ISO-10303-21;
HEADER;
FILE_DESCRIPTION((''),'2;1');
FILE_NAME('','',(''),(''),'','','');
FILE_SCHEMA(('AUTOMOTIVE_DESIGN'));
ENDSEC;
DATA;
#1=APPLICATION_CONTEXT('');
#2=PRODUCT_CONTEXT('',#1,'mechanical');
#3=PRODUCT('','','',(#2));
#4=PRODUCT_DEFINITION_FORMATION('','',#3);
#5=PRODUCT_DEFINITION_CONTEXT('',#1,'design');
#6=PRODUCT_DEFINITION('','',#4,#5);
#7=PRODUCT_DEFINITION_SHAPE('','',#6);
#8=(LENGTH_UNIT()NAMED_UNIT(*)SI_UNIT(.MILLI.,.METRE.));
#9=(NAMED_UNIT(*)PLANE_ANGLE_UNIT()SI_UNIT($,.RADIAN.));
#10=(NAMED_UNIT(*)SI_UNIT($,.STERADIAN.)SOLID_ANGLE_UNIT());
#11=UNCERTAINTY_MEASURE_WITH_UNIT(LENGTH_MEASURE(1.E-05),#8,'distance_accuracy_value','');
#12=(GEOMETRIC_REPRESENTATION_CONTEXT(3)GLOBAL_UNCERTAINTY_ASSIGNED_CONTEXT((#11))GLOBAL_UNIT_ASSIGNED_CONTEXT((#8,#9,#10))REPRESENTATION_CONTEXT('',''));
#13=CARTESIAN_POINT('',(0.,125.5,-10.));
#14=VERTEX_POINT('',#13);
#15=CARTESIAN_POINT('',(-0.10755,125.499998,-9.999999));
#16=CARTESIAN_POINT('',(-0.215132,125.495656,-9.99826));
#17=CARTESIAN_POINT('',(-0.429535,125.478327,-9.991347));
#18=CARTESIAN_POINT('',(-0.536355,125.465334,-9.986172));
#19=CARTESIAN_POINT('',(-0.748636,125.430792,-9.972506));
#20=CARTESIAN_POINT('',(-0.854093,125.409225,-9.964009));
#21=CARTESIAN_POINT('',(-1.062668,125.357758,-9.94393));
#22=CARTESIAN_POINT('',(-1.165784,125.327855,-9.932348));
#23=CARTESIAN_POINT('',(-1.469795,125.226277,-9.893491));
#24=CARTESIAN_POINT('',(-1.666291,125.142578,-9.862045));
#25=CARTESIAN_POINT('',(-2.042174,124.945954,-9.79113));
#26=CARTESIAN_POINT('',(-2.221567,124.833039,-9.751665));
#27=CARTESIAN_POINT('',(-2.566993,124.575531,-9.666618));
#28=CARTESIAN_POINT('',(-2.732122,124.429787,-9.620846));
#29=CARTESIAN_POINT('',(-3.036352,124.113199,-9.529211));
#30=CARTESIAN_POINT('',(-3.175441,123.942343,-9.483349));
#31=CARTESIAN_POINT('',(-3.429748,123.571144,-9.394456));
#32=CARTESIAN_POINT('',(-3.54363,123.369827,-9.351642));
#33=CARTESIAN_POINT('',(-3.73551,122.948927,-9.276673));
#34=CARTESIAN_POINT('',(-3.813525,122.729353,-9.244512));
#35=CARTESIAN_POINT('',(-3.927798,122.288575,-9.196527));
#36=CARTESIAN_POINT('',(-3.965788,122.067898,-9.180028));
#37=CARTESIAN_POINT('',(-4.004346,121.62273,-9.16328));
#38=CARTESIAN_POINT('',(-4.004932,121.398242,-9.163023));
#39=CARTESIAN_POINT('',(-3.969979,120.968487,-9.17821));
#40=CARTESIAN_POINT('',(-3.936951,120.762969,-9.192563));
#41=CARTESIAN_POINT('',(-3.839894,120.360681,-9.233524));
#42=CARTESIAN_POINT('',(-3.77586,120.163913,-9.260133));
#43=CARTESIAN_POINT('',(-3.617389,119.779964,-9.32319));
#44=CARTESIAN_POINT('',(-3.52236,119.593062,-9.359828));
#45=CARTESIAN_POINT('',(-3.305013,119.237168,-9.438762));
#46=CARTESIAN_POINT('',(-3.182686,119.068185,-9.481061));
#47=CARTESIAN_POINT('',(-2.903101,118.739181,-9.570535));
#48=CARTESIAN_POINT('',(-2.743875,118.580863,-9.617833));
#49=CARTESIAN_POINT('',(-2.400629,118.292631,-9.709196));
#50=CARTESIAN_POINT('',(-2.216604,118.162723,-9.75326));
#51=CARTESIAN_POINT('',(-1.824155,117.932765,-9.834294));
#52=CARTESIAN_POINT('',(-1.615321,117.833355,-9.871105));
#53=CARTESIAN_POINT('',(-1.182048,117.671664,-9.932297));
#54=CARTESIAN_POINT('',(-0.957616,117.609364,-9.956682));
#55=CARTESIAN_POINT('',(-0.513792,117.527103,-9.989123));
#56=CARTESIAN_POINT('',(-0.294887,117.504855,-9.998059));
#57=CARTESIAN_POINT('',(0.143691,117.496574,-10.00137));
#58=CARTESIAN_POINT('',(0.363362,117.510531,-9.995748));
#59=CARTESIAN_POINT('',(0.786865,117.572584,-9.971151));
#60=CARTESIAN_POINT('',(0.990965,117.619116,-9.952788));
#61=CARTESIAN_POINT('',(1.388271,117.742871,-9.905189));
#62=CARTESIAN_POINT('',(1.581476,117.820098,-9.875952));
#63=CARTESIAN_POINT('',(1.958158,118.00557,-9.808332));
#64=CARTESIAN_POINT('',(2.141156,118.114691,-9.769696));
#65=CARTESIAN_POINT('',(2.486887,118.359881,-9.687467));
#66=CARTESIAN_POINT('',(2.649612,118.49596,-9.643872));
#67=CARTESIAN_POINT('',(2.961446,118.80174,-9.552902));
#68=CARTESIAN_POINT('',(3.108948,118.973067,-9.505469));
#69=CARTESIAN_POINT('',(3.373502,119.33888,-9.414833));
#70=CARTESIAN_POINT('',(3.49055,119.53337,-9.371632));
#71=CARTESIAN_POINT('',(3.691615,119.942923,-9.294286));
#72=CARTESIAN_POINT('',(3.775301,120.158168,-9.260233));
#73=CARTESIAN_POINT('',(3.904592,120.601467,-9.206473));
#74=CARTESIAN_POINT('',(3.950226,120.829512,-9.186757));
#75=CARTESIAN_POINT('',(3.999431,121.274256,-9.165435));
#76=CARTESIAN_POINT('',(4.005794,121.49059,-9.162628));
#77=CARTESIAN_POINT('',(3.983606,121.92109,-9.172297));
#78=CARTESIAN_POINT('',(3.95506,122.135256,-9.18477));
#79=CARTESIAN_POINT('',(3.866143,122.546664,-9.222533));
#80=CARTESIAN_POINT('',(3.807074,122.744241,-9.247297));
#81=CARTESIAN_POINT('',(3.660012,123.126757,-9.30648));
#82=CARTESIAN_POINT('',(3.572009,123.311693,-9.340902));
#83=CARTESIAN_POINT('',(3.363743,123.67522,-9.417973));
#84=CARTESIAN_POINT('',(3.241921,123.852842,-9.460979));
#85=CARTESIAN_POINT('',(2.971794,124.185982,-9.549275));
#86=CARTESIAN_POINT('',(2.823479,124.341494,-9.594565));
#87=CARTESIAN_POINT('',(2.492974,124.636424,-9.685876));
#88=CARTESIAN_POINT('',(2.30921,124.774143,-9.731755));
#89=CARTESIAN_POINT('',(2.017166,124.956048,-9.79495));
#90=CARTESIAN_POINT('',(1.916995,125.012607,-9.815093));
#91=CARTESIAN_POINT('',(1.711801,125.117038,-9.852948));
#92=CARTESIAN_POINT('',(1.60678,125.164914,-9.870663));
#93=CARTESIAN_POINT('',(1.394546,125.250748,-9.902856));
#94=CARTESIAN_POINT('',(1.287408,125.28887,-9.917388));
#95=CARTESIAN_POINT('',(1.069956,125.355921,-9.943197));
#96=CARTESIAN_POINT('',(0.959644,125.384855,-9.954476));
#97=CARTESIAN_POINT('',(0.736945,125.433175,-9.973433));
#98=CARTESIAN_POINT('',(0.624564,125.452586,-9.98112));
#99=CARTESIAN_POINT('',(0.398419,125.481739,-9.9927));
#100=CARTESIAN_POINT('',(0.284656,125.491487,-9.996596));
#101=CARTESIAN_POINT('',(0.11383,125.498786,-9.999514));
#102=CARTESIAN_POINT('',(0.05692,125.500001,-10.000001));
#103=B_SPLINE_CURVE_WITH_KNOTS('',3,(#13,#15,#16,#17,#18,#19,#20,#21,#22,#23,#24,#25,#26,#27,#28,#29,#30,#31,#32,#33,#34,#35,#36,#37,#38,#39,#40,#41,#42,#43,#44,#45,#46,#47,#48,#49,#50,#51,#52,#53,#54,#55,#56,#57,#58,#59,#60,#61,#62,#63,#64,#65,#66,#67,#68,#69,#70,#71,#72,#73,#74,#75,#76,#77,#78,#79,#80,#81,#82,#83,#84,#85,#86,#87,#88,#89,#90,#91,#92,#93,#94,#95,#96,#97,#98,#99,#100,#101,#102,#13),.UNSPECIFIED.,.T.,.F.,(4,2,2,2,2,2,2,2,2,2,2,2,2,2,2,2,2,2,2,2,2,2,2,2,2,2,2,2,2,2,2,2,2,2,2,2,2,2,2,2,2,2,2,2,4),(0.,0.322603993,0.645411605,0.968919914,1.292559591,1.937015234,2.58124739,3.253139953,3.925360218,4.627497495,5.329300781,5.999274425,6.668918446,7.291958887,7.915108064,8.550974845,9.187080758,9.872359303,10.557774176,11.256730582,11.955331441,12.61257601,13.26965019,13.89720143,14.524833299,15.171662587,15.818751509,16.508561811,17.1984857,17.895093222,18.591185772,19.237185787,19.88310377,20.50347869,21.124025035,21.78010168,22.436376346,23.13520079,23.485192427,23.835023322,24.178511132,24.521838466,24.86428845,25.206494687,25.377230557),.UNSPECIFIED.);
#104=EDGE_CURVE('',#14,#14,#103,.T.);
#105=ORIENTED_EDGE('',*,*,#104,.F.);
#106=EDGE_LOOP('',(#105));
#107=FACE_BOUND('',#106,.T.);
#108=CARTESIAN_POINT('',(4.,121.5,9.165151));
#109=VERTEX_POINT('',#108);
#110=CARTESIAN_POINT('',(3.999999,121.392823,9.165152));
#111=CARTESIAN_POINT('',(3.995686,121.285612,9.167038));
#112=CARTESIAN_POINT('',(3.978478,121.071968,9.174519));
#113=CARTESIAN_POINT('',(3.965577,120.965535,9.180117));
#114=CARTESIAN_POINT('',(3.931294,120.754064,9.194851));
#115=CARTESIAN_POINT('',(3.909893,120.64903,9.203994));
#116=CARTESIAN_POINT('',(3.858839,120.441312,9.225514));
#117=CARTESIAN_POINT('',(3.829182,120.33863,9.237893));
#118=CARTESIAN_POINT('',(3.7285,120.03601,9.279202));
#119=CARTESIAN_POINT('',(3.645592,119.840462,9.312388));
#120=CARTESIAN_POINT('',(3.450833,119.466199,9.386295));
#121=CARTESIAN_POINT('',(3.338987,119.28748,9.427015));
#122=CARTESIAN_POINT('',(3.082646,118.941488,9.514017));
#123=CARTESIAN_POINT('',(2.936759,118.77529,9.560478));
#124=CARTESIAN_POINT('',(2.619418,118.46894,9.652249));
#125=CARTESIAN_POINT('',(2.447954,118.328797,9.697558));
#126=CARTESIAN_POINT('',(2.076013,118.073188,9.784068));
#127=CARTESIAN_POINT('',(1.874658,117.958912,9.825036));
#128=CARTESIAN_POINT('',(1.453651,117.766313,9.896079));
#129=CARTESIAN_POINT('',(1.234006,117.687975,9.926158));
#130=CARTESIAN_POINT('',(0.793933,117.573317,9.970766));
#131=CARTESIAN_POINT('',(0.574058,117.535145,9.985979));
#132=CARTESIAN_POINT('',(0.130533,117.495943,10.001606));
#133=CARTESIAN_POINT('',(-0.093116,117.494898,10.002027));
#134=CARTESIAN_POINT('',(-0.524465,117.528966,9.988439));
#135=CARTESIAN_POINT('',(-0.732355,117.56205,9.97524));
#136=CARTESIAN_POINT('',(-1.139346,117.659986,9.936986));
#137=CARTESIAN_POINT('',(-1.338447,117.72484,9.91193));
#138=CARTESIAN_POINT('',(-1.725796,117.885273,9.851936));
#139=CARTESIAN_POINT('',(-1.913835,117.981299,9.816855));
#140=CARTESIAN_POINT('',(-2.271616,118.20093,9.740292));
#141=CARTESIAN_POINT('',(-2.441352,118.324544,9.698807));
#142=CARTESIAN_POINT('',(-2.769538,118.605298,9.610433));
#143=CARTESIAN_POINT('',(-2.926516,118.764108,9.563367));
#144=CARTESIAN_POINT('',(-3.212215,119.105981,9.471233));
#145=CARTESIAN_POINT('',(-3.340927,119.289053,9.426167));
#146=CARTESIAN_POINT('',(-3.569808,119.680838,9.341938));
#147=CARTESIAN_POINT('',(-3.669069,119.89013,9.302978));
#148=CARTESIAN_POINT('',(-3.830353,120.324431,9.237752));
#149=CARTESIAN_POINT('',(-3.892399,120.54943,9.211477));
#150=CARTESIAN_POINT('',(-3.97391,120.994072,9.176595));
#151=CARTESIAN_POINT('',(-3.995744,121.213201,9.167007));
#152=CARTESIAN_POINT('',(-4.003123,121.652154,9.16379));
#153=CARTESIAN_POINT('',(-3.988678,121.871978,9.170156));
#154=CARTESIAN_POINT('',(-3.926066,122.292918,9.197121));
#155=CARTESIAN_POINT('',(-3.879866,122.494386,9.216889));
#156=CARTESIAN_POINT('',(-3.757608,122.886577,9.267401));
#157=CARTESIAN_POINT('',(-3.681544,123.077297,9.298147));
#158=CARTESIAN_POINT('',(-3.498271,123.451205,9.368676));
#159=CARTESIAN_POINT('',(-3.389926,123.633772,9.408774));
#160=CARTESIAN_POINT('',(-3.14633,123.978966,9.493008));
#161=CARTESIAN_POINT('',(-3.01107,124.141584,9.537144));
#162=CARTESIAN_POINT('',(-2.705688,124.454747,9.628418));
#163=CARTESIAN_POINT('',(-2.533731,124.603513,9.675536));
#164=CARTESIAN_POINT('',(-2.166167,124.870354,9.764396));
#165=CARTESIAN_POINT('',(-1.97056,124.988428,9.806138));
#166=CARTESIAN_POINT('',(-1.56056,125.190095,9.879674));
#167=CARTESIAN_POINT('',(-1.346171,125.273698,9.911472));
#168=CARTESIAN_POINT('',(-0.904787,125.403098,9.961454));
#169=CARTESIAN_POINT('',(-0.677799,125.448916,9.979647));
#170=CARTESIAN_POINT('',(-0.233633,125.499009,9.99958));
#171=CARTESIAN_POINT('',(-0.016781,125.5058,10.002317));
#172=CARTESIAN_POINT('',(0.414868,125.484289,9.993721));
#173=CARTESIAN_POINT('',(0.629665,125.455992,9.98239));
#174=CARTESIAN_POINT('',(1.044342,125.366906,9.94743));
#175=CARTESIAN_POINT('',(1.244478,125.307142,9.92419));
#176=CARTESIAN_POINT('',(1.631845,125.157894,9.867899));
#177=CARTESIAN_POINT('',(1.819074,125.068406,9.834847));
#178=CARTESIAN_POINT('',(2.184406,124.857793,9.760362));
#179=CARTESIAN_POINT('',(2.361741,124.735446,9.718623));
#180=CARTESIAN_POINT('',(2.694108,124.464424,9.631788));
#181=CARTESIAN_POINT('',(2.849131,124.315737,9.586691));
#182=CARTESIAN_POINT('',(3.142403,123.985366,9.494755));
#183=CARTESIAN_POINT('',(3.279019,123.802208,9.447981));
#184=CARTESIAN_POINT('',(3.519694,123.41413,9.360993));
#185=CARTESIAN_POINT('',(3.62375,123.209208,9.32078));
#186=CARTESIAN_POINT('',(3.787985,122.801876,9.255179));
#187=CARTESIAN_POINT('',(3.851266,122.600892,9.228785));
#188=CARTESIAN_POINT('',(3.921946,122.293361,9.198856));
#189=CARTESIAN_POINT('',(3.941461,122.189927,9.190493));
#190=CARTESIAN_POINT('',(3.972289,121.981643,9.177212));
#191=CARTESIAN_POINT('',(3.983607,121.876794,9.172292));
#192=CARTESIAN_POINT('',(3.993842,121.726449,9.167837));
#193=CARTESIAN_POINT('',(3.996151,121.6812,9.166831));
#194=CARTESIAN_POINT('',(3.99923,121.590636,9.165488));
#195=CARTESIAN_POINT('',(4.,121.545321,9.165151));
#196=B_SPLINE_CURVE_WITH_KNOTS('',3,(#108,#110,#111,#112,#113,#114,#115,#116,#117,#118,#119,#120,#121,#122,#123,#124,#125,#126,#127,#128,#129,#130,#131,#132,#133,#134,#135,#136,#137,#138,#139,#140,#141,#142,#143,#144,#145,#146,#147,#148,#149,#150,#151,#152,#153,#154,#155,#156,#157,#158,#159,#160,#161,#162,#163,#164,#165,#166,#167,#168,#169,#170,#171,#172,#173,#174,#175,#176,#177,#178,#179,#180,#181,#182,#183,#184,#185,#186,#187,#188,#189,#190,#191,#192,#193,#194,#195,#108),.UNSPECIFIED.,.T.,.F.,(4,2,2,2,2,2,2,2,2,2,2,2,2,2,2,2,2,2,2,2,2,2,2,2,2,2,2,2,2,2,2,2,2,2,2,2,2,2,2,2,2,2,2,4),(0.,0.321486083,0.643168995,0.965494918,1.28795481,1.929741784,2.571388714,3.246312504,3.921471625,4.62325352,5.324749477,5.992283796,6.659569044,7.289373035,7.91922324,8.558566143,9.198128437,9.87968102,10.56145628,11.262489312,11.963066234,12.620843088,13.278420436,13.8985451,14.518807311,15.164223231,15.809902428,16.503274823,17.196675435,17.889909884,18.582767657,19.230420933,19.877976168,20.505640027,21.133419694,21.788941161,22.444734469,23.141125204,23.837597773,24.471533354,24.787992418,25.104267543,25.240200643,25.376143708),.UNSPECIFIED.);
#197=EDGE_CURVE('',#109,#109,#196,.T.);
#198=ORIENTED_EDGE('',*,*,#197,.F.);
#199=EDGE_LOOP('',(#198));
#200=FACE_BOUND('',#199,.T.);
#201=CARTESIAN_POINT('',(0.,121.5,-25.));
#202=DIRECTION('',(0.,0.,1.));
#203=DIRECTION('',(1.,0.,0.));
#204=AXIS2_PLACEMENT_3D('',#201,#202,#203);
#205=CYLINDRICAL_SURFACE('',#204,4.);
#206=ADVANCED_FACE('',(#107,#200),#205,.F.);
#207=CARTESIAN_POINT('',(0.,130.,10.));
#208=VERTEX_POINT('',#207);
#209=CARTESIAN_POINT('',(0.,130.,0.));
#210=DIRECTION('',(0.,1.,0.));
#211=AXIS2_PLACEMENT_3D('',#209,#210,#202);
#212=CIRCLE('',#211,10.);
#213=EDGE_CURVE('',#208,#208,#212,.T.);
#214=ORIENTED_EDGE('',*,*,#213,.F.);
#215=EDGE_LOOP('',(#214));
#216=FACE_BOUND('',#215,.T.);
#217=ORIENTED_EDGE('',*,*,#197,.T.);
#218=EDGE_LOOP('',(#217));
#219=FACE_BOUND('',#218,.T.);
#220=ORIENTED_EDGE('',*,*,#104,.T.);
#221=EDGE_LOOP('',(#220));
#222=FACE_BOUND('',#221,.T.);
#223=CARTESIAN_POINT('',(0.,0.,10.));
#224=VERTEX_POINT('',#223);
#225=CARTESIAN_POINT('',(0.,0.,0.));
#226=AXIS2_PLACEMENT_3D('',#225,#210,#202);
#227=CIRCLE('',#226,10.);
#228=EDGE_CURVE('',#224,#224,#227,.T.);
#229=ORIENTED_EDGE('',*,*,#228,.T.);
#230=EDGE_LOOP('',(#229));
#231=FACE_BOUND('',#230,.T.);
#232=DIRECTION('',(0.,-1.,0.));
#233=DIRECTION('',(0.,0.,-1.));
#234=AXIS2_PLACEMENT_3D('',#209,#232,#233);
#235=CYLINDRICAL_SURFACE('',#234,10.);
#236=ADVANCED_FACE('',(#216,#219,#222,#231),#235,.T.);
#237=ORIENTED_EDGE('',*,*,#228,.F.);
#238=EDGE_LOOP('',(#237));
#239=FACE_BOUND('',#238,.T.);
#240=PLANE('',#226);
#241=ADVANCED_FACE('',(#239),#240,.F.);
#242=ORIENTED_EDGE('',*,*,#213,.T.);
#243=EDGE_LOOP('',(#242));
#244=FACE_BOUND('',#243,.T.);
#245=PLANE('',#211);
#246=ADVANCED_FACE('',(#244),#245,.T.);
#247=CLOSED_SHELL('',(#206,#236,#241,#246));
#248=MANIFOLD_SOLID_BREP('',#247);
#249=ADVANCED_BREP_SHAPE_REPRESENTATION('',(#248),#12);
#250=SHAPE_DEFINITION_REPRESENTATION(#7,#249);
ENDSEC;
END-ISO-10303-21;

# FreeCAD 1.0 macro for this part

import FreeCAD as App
import Part
import Sketcher
from FreeCAD import Vector

doc = App.newDocument("Part")
body = doc.addObject("PartDesign::Body", "Body")

# Sketch on XZ plane
sketch1 = doc.addObject("Sketcher::SketchObject", "Sketch")
body.addObject(sketch1)
sketch1.AttachmentSupport = (doc.XZ_Plane, [""])
sketch1.MapMode = "FlatFace"
sketch1.addGeometry(Part.Circle(Vector(0, 0, 0), Vector(0, 0, 1), 10), False)
sketch1.addConstraint([
    Sketcher.Constraint("Coincident", 0, 3, -1, 1),
    Sketcher.Constraint("Diameter", 0, 20.0),
])
pad1 = doc.addObject("PartDesign::Pad", "Pad")
body.addObject(pad1)
pad1.Profile = sketch1
pad1.Length = 130
pad1.Reversed = True

# Sketch on XY plane
sketch2 = doc.addObject("Sketcher::SketchObject", "Sketch001")
body.addObject(sketch2)
sketch2.AttachmentSupport = (doc.XY_Plane, [""])
sketch2.MapMode = "FlatFace"
sketch2.addGeometry(Part.Circle(Vector(0, 121.5, 0), Vector(0, 0, 1), 4), False)
sketch2.addConstraint([
    Sketcher.Constraint("PointOnObject", 0, 3, -2),
    Sketcher.Constraint("Diameter", 0, 8.0),
    Sketcher.Constraint("DistanceY", -1, 1, 0, 3, 121.5),
])
pocket1 = doc.addObject("PartDesign::Pocket", "Pocket")
body.addObject(pocket1)
pocket1.Profile = sketch2
pocket1.Length = 50
pocket1.Midplane = True

doc.recompute()
